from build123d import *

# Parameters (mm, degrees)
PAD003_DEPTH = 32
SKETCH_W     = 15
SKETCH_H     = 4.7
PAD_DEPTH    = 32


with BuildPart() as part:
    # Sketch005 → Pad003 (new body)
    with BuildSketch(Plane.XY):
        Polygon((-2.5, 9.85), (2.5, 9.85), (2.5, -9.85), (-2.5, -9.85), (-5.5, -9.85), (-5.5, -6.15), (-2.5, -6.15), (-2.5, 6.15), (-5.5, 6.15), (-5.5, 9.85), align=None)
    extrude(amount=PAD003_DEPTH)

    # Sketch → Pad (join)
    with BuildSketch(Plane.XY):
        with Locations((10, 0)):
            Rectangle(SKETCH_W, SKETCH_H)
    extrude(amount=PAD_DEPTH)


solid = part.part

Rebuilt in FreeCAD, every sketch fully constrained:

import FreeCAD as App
import Part
import Sketcher

doc = App.newDocument("Part")
body = doc.addObject("PartDesign::Body", "Body")

sketch1 = body.newObject("Sketcher::SketchObject", "Sketch")
sketch1.AttachmentSupport = (doc.getObject("XY_Plane"), [""])
sketch1.MapMode = "FlatFace"
sketch1.addGeometry(Part.LineSegment(App.Vector(2.5, 9.85, 0), App.Vector(-5.5, 9.85, 0)), False)
sketch1.addGeometry(Part.LineSegment(App.Vector(-5.5, 9.85, 0), App.Vector(-5.5, 6.15, 0)), False)
sketch1.addGeometry(Part.LineSegment(App.Vector(-5.5, 6.15, 0), App.Vector(-2.5, 6.15, 0)), False)
sketch1.addGeometry(Part.LineSegment(App.Vector(-2.5, 6.15, 0), App.Vector(-2.5, -6.15, 0)), False)
sketch1.addGeometry(Part.LineSegment(App.Vector(-2.5, -6.15, 0), App.Vector(-5.5, -6.15, 0)), False)
sketch1.addGeometry(Part.LineSegment(App.Vector(-5.5, -6.15, 0), App.Vector(-5.5, -9.85, 0)), False)
sketch1.addGeometry(Part.LineSegment(App.Vector(-5.5, -9.85, 0), App.Vector(2.5, -9.85, 0)), False)
sketch1.addGeometry(Part.LineSegment(App.Vector(2.5, -9.85, 0), App.Vector(2.5, 9.85, 0)), False)
sketch1.addConstraint(Sketcher.Constraint("Coincident", 0, 2, 1, 1))
sketch1.addConstraint(Sketcher.Constraint("Coincident", 1, 2, 2, 1))
sketch1.addConstraint(Sketcher.Constraint("Coincident", 2, 2, 3, 1))
sketch1.addConstraint(Sketcher.Constraint("Coincident", 3, 2, 4, 1))
sketch1.addConstraint(Sketcher.Constraint("Coincident", 4, 2, 5, 1))
sketch1.addConstraint(Sketcher.Constraint("Coincident", 5, 2, 6, 1))
sketch1.addConstraint(Sketcher.Constraint("Coincident", 6, 2, 7, 1))
sketch1.addConstraint(Sketcher.Constraint("Coincident", 7, 2, 0, 1))
sketch1.addConstraint(Sketcher.Constraint("Horizontal", 0))
sketch1.addConstraint(Sketcher.Constraint("Vertical", 1))
sketch1.addConstraint(Sketcher.Constraint("Horizontal", 2))
sketch1.addConstraint(Sketcher.Constraint("Vertical", 3))
sketch1.addConstraint(Sketcher.Constraint("Horizontal", 4))
sketch1.addConstraint(Sketcher.Constraint("Vertical", 5))
sketch1.addConstraint(Sketcher.Constraint("Horizontal", 6))
sketch1.addConstraint(Sketcher.Constraint("Vertical", 7))
sketch1.addConstraint(Sketcher.Constraint("Symmetric", 1, 2, 4, 2, -1))
sketch1.addConstraint(Sketcher.Constraint("Equal", 1, 5))
sketch1.addConstraint(Sketcher.Constraint("DistanceX", 0, 2, 0, 1, 8.0))
sketch1.addConstraint(Sketcher.Constraint("DistanceX", 2, 1, 2, 2, 3.0))
sketch1.addConstraint(Sketcher.Constraint("DistanceY", 1, 2, 1, 1, 3.7))
sketch1.addConstraint(Sketcher.Constraint("DistanceY", 3, 2, 3, 1, 12.3))
sketch1.addConstraint(Sketcher.Constraint("DistanceX", 0, 2, -1, 1, 5.5))
pad1 = body.newObject("PartDesign::Pad", "Pad")
pad1.Profile = sketch1
pad1.Length = 32

sketch2 = body.newObject("Sketcher::SketchObject", "Sketch001")
sketch2.AttachmentSupport = (doc.getObject("XY_Plane"), [""])
sketch2.MapMode = "FlatFace"
sketch2.addGeometry(Part.LineSegment(App.Vector(2.5, 2.35, 0), App.Vector(2.5, -2.35, 0)), False)
sketch2.addGeometry(Part.LineSegment(App.Vector(2.5, -2.35, 0), App.Vector(17.5, -2.35, 0)), False)
sketch2.addGeometry(Part.LineSegment(App.Vector(17.5, -2.35, 0), App.Vector(17.5, 2.35, 0)), False)
sketch2.addGeometry(Part.LineSegment(App.Vector(17.5, 2.35, 0), App.Vector(2.5, 2.35, 0)), False)
sketch2.addConstraint(Sketcher.Constraint("Coincident", 0, 2, 1, 1))
sketch2.addConstraint(Sketcher.Constraint("Coincident", 1, 2, 2, 1))
sketch2.addConstraint(Sketcher.Constraint("Coincident", 2, 2, 3, 1))
sketch2.addConstraint(Sketcher.Constraint("Coincident", 3, 2, 0, 1))
sketch2.addConstraint(Sketcher.Constraint("Vertical", 0))
sketch2.addConstraint(Sketcher.Constraint("Horizontal", 1))
sketch2.addConstraint(Sketcher.Constraint("Vertical", 2))
sketch2.addConstraint(Sketcher.Constraint("Horizontal", 3))
sketch2.addConstraint(Sketcher.Constraint("DistanceX", 1, 1, 1, 2, 15.0))
sketch2.addConstraint(Sketcher.Constraint("DistanceY", 0, 2, 0, 1, 4.7))
sketch2.addConstraint(Sketcher.Constraint("DistanceX", -1, 1, 0, 2, 2.5))
sketch2.addConstraint(Sketcher.Constraint("DistanceY", 0, 2, -1, 1, 2.35))
pad2 = body.newObject("PartDesign::Pad", "Pad001")
pad2.Profile = sketch2
pad2.Length = 32

doc.recompute()
